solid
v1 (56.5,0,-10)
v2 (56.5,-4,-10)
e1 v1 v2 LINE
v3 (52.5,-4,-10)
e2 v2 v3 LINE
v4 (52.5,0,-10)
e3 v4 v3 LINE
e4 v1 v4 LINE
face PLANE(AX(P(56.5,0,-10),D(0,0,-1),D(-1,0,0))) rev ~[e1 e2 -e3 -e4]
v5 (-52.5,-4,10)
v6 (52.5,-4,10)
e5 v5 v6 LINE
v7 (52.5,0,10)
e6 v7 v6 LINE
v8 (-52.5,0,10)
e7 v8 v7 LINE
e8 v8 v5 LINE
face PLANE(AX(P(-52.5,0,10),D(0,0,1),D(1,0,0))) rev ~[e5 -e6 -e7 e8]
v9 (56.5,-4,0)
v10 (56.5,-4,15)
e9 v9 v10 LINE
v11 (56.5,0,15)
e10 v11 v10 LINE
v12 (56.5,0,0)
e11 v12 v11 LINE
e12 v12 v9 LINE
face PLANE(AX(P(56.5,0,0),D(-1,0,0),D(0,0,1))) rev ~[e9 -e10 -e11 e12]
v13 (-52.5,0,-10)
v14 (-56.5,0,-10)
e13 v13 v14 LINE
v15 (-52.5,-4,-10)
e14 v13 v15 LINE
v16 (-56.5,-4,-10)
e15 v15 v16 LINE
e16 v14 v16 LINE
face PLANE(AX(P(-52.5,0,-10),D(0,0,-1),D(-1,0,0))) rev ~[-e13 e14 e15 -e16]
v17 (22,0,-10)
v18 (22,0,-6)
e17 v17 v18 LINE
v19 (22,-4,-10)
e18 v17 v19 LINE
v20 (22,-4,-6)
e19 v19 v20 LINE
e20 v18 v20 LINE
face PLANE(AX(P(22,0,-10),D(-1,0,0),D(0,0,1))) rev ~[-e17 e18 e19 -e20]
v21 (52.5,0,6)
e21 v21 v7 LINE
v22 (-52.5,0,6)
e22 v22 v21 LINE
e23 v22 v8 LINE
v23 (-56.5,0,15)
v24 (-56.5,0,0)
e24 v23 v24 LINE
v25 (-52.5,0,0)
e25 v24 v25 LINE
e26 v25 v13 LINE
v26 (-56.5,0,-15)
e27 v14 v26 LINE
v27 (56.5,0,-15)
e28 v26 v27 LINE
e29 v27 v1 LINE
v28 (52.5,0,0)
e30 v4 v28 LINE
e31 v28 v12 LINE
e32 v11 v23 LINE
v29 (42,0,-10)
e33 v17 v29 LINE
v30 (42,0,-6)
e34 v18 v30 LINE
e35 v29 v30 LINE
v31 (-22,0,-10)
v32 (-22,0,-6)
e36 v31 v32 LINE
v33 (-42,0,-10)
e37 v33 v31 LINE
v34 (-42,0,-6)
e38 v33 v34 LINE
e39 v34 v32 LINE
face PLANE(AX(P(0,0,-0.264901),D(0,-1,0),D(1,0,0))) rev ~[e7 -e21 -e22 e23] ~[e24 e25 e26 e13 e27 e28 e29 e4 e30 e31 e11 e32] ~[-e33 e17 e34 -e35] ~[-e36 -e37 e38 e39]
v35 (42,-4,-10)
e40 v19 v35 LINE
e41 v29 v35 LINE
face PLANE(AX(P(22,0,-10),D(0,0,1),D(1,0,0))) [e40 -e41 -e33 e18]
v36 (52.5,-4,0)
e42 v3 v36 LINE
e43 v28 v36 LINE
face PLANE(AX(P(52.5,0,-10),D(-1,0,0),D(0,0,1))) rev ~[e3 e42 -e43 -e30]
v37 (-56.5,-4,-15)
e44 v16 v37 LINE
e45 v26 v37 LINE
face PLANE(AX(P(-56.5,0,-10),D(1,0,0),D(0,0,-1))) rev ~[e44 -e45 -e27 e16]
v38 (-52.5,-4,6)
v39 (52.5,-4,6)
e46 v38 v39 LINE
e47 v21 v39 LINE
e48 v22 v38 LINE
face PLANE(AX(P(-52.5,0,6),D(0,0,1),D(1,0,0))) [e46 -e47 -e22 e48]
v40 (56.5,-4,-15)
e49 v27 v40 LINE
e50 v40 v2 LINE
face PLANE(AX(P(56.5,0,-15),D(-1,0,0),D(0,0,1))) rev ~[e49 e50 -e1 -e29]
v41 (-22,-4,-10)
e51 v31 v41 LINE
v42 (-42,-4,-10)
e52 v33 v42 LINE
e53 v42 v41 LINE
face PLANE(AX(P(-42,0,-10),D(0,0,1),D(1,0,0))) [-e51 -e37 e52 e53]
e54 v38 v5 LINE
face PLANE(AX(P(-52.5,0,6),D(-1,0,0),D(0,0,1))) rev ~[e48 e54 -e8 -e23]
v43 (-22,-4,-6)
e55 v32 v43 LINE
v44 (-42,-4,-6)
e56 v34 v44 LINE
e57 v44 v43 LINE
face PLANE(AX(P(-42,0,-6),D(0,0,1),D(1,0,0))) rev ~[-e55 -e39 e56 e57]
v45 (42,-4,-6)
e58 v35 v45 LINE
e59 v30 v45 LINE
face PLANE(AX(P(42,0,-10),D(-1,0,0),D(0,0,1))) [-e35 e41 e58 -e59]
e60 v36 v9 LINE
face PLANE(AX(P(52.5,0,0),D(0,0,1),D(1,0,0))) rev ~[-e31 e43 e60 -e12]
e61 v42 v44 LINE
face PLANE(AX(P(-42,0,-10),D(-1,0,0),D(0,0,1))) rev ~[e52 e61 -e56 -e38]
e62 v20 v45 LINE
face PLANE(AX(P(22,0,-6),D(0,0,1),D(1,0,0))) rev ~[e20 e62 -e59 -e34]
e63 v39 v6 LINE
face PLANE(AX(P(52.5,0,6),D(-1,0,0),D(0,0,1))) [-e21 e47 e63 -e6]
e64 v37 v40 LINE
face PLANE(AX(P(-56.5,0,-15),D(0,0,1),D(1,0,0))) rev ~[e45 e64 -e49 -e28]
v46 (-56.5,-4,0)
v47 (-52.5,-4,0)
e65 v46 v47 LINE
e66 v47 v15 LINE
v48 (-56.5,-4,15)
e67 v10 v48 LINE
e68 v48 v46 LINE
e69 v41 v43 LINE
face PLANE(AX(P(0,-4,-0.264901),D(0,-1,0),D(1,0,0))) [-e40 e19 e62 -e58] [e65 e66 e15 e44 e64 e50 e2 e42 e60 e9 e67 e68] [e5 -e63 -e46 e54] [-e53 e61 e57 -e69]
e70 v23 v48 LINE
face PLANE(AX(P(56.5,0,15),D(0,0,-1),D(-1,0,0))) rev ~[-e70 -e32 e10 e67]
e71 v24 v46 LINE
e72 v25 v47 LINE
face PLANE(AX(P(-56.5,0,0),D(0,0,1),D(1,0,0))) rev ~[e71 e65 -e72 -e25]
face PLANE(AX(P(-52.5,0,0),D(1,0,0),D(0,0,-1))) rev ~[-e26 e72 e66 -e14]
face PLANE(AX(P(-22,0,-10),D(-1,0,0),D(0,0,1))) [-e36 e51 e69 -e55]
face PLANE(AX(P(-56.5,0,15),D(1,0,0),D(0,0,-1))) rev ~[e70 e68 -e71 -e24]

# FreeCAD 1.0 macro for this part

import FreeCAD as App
import Part
import Sketcher
from FreeCAD import Vector
Q = App.Units.Quantity

doc = App.newDocument("Part")
body = doc.addObject("PartDesign::Body", "Body")

sketch1 = body.newObject("Sketcher::SketchObject", "Sketch")
sketch1.AttachmentSupport = (doc.getObject("XZ_Plane"), [""])
sketch1.MapMode = "FlatFace"
sketch1.addGeometry(Part.LineSegment(Vector(56.5, 0, 0), Vector(56.5, 15, 0)), False)
sketch1.addGeometry(Part.LineSegment(Vector(56.5, 15, 0), Vector(-56.5, 15, 0)), False)
sketch1.addGeometry(Part.LineSegment(Vector(-56.5, 15, 0), Vector(-56.5, 0, 0)), False)
sketch1.addGeometry(Part.LineSegment(Vector(-56.5, 0, 0), Vector(-52.5, 0, 0)), False)
sketch1.addGeometry(Part.LineSegment(Vector(-52.5, 0, 0), Vector(-52.5, -10, 0)), False)
sketch1.addGeometry(Part.LineSegment(Vector(-52.5, -10, 0), Vector(-56.5, -10, 0)), False)
sketch1.addGeometry(Part.LineSegment(Vector(-56.5, -10, 0), Vector(-56.5, -15, 0)), False)
sketch1.addGeometry(Part.LineSegment(Vector(-56.5, -15, 0), Vector(56.5, -15, 0)), False)
sketch1.addGeometry(Part.LineSegment(Vector(56.5, -15, 0), Vector(56.5, -10, 0)), False)
sketch1.addGeometry(Part.LineSegment(Vector(56.5, -10, 0), Vector(52.5, -10, 0)), False)
sketch1.addGeometry(Part.LineSegment(Vector(52.5, -10, 0), Vector(52.5, 0, 0)), False)
sketch1.addGeometry(Part.LineSegment(Vector(52.5, 0, 0), Vector(56.5, 0, 0)), False)
sketch1.addGeometry(Part.LineSegment(Vector(-22, -10, 0), Vector(-42, -10, 0)), False)
sketch1.addGeometry(Part.LineSegment(Vector(-42, -10, 0), Vector(-42, -6, 0)), False)
sketch1.addGeometry(Part.LineSegment(Vector(-42, -6, 0), Vector(-22, -6, 0)), False)
sketch1.addGeometry(Part.LineSegment(Vector(-22, -6, 0), Vector(-22, -10, 0)), False)
sketch1.addGeometry(Part.LineSegment(Vector(42, -10, 0), Vector(22, -10, 0)), False)
sketch1.addGeometry(Part.LineSegment(Vector(22, -10, 0), Vector(22, -6, 0)), False)
sketch1.addGeometry(Part.LineSegment(Vector(22, -6, 0), Vector(42, -6, 0)), False)
sketch1.addGeometry(Part.LineSegment(Vector(42, -6, 0), Vector(42, -10, 0)), False)
sketch1.addGeometry(Part.LineSegment(Vector(52.5, 6, 0), Vector(-52.5, 6, 0)), False)
sketch1.addGeometry(Part.LineSegment(Vector(-52.5, 6, 0), Vector(-52.5, 10, 0)), False)
sketch1.addGeometry(Part.LineSegment(Vector(-52.5, 10, 0), Vector(52.5, 10, 0)), False)
sketch1.addGeometry(Part.LineSegment(Vector(52.5, 10, 0), Vector(52.5, 6, 0)), False)
sketch1.addConstraint(Sketcher.Constraint("Coincident", 0, 2, 1, 1))
sketch1.addConstraint(Sketcher.Constraint("Coincident", 1, 2, 2, 1))
sketch1.addConstraint(Sketcher.Constraint("Coincident", 2, 2, 3, 1))
sketch1.addConstraint(Sketcher.Constraint("Coincident", 3, 2, 4, 1))
sketch1.addConstraint(Sketcher.Constraint("Coincident", 4, 2, 5, 1))
sketch1.addConstraint(Sketcher.Constraint("Coincident", 5, 2, 6, 1))
sketch1.addConstraint(Sketcher.Constraint("Coincident", 6, 2, 7, 1))
sketch1.addConstraint(Sketcher.Constraint("Coincident", 7, 2, 8, 1))
sketch1.addConstraint(Sketcher.Constraint("Coincident", 8, 2, 9, 1))
sketch1.addConstraint(Sketcher.Constraint("Coincident", 9, 2, 10, 1))
sketch1.addConstraint(Sketcher.Constraint("Coincident", 10, 2, 11, 1))
sketch1.addConstraint(Sketcher.Constraint("Coincident", 11, 2, 0, 1))
sketch1.addConstraint(Sketcher.Constraint("Coincident", 12, 2, 13, 1))
sketch1.addConstraint(Sketcher.Constraint("Coincident", 13, 2, 14, 1))
sketch1.addConstraint(Sketcher.Constraint("Coincident", 14, 2, 15, 1))
sketch1.addConstraint(Sketcher.Constraint("Coincident", 15, 2, 12, 1))
sketch1.addConstraint(Sketcher.Constraint("Coincident", 16, 2, 17, 1))
sketch1.addConstraint(Sketcher.Constraint("Coincident", 17, 2, 18, 1))
sketch1.addConstraint(Sketcher.Constraint("Coincident", 18, 2, 19, 1))
sketch1.addConstraint(Sketcher.Constraint("Coincident", 19, 2, 16, 1))
sketch1.addConstraint(Sketcher.Constraint("Coincident", 20, 2, 21, 1))
sketch1.addConstraint(Sketcher.Constraint("Coincident", 21, 2, 22, 1))
sketch1.addConstraint(Sketcher.Constraint("Coincident", 22, 2, 23, 1))
sketch1.addConstraint(Sketcher.Constraint("Coincident", 23, 2, 20, 1))
sketch1.addConstraint(Sketcher.Constraint("Vertical", 0))
sketch1.addConstraint(Sketcher.Constraint("Horizontal", 1))
sketch1.addConstraint(Sketcher.Constraint("Vertical", 2))
sketch1.addConstraint(Sketcher.Constraint("Horizontal", 3))
sketch1.addConstraint(Sketcher.Constraint("Vertical", 4))
sketch1.addConstraint(Sketcher.Constraint("Horizontal", 5))
sketch1.addConstraint(Sketcher.Constraint("Vertical", 6))
sketch1.addConstraint(Sketcher.Constraint("Horizontal", 7))
sketch1.addConstraint(Sketcher.Constraint("Vertical", 8))
sketch1.addConstraint(Sketcher.Constraint("Horizontal", 9))
sketch1.addConstraint(Sketcher.Constraint("Vertical", 10))
sketch1.addConstraint(Sketcher.Constraint("Horizontal", 11))
sketch1.addConstraint(Sketcher.Constraint("Horizontal", 12))
sketch1.addConstraint(Sketcher.Constraint("Vertical", 13))
sketch1.addConstraint(Sketcher.Constraint("Horizontal", 14))
sketch1.addConstraint(Sketcher.Constraint("Vertical", 15))
sketch1.addConstraint(Sketcher.Constraint("Horizontal", 16))
sketch1.addConstraint(Sketcher.Constraint("Vertical", 17))
sketch1.addConstraint(Sketcher.Constraint("Horizontal", 18))
sketch1.addConstraint(Sketcher.Constraint("Vertical", 19))
sketch1.addConstraint(Sketcher.Constraint("Horizontal", 20))
sketch1.addConstraint(Sketcher.Constraint("Vertical", 21))
sketch1.addConstraint(Sketcher.Constraint("Horizontal", 22))
sketch1.addConstraint(Sketcher.Constraint("Vertical", 23))
sketch1.addConstraint(Sketcher.Constraint("Symmetric", 0, 2, 6, 2, -1, 1))
sketch1.addConstraint(Sketcher.Constraint("Symmetric", 3, 2, 10, 2, -1, 1))
sketch1.addConstraint(Sketcher.Constraint("Symmetric", 9, 2, 21, 2, -1, 1))
sketch1.addConstraint(Sketcher.Constraint("Symmetric", 4, 2, 22, 2, -1, 1))
sketch1.addConstraint(Sketcher.Constraint("Symmetric", 2, 2, 11, 2, -2))
sketch1.addConstraint(Sketcher.Constraint("Symmetric", 15, 2, 16, 2, -2))
sketch1.addConstraint(Sketcher.Constraint("Symmetric", 13, 2, 18, 2, -2))
sketch1.addConstraint(Sketcher.Constraint("Horizontal", 9, 2, 12, 2))
sketch1.addConstraint(Sketcher.Constraint("Vertical", 0, 2, 7, 2))
sketch1.addConstraint(Sketcher.Constraint("Equal", 11, 13))
sketch1.addConstraint(Sketcher.Constraint("Equal", 19, 21))
sketch1.addConstraint(Sketcher.Constraint("DistanceX", 1, 2, 1, 1, Q("113 mm")))
sketch1.addConstraint(Sketcher.Constraint("DistanceX", 3, 1, 3, 2, Q("4 mm")))
sketch1.addConstraint(Sketcher.Constraint("DistanceX", 12, 2, 12, 1, Q("20 mm")))
sketch1.addConstraint(Sketcher.Constraint("DistanceY", 0, 1, 0, 2, Q("15 mm")))
sketch1.addConstraint(Sketcher.Constraint("DistanceY", 4, 2, 4, 1, Q("10 mm")))
sketch1.addConstraint(Sketcher.Constraint("DistanceX", 12, 2, -1, 1, Q("42 mm")))
pad1 = body.newObject("PartDesign::Pad", "Pad")
pad1.Profile = sketch1
pad1.Length = 4

doc.recompute()
